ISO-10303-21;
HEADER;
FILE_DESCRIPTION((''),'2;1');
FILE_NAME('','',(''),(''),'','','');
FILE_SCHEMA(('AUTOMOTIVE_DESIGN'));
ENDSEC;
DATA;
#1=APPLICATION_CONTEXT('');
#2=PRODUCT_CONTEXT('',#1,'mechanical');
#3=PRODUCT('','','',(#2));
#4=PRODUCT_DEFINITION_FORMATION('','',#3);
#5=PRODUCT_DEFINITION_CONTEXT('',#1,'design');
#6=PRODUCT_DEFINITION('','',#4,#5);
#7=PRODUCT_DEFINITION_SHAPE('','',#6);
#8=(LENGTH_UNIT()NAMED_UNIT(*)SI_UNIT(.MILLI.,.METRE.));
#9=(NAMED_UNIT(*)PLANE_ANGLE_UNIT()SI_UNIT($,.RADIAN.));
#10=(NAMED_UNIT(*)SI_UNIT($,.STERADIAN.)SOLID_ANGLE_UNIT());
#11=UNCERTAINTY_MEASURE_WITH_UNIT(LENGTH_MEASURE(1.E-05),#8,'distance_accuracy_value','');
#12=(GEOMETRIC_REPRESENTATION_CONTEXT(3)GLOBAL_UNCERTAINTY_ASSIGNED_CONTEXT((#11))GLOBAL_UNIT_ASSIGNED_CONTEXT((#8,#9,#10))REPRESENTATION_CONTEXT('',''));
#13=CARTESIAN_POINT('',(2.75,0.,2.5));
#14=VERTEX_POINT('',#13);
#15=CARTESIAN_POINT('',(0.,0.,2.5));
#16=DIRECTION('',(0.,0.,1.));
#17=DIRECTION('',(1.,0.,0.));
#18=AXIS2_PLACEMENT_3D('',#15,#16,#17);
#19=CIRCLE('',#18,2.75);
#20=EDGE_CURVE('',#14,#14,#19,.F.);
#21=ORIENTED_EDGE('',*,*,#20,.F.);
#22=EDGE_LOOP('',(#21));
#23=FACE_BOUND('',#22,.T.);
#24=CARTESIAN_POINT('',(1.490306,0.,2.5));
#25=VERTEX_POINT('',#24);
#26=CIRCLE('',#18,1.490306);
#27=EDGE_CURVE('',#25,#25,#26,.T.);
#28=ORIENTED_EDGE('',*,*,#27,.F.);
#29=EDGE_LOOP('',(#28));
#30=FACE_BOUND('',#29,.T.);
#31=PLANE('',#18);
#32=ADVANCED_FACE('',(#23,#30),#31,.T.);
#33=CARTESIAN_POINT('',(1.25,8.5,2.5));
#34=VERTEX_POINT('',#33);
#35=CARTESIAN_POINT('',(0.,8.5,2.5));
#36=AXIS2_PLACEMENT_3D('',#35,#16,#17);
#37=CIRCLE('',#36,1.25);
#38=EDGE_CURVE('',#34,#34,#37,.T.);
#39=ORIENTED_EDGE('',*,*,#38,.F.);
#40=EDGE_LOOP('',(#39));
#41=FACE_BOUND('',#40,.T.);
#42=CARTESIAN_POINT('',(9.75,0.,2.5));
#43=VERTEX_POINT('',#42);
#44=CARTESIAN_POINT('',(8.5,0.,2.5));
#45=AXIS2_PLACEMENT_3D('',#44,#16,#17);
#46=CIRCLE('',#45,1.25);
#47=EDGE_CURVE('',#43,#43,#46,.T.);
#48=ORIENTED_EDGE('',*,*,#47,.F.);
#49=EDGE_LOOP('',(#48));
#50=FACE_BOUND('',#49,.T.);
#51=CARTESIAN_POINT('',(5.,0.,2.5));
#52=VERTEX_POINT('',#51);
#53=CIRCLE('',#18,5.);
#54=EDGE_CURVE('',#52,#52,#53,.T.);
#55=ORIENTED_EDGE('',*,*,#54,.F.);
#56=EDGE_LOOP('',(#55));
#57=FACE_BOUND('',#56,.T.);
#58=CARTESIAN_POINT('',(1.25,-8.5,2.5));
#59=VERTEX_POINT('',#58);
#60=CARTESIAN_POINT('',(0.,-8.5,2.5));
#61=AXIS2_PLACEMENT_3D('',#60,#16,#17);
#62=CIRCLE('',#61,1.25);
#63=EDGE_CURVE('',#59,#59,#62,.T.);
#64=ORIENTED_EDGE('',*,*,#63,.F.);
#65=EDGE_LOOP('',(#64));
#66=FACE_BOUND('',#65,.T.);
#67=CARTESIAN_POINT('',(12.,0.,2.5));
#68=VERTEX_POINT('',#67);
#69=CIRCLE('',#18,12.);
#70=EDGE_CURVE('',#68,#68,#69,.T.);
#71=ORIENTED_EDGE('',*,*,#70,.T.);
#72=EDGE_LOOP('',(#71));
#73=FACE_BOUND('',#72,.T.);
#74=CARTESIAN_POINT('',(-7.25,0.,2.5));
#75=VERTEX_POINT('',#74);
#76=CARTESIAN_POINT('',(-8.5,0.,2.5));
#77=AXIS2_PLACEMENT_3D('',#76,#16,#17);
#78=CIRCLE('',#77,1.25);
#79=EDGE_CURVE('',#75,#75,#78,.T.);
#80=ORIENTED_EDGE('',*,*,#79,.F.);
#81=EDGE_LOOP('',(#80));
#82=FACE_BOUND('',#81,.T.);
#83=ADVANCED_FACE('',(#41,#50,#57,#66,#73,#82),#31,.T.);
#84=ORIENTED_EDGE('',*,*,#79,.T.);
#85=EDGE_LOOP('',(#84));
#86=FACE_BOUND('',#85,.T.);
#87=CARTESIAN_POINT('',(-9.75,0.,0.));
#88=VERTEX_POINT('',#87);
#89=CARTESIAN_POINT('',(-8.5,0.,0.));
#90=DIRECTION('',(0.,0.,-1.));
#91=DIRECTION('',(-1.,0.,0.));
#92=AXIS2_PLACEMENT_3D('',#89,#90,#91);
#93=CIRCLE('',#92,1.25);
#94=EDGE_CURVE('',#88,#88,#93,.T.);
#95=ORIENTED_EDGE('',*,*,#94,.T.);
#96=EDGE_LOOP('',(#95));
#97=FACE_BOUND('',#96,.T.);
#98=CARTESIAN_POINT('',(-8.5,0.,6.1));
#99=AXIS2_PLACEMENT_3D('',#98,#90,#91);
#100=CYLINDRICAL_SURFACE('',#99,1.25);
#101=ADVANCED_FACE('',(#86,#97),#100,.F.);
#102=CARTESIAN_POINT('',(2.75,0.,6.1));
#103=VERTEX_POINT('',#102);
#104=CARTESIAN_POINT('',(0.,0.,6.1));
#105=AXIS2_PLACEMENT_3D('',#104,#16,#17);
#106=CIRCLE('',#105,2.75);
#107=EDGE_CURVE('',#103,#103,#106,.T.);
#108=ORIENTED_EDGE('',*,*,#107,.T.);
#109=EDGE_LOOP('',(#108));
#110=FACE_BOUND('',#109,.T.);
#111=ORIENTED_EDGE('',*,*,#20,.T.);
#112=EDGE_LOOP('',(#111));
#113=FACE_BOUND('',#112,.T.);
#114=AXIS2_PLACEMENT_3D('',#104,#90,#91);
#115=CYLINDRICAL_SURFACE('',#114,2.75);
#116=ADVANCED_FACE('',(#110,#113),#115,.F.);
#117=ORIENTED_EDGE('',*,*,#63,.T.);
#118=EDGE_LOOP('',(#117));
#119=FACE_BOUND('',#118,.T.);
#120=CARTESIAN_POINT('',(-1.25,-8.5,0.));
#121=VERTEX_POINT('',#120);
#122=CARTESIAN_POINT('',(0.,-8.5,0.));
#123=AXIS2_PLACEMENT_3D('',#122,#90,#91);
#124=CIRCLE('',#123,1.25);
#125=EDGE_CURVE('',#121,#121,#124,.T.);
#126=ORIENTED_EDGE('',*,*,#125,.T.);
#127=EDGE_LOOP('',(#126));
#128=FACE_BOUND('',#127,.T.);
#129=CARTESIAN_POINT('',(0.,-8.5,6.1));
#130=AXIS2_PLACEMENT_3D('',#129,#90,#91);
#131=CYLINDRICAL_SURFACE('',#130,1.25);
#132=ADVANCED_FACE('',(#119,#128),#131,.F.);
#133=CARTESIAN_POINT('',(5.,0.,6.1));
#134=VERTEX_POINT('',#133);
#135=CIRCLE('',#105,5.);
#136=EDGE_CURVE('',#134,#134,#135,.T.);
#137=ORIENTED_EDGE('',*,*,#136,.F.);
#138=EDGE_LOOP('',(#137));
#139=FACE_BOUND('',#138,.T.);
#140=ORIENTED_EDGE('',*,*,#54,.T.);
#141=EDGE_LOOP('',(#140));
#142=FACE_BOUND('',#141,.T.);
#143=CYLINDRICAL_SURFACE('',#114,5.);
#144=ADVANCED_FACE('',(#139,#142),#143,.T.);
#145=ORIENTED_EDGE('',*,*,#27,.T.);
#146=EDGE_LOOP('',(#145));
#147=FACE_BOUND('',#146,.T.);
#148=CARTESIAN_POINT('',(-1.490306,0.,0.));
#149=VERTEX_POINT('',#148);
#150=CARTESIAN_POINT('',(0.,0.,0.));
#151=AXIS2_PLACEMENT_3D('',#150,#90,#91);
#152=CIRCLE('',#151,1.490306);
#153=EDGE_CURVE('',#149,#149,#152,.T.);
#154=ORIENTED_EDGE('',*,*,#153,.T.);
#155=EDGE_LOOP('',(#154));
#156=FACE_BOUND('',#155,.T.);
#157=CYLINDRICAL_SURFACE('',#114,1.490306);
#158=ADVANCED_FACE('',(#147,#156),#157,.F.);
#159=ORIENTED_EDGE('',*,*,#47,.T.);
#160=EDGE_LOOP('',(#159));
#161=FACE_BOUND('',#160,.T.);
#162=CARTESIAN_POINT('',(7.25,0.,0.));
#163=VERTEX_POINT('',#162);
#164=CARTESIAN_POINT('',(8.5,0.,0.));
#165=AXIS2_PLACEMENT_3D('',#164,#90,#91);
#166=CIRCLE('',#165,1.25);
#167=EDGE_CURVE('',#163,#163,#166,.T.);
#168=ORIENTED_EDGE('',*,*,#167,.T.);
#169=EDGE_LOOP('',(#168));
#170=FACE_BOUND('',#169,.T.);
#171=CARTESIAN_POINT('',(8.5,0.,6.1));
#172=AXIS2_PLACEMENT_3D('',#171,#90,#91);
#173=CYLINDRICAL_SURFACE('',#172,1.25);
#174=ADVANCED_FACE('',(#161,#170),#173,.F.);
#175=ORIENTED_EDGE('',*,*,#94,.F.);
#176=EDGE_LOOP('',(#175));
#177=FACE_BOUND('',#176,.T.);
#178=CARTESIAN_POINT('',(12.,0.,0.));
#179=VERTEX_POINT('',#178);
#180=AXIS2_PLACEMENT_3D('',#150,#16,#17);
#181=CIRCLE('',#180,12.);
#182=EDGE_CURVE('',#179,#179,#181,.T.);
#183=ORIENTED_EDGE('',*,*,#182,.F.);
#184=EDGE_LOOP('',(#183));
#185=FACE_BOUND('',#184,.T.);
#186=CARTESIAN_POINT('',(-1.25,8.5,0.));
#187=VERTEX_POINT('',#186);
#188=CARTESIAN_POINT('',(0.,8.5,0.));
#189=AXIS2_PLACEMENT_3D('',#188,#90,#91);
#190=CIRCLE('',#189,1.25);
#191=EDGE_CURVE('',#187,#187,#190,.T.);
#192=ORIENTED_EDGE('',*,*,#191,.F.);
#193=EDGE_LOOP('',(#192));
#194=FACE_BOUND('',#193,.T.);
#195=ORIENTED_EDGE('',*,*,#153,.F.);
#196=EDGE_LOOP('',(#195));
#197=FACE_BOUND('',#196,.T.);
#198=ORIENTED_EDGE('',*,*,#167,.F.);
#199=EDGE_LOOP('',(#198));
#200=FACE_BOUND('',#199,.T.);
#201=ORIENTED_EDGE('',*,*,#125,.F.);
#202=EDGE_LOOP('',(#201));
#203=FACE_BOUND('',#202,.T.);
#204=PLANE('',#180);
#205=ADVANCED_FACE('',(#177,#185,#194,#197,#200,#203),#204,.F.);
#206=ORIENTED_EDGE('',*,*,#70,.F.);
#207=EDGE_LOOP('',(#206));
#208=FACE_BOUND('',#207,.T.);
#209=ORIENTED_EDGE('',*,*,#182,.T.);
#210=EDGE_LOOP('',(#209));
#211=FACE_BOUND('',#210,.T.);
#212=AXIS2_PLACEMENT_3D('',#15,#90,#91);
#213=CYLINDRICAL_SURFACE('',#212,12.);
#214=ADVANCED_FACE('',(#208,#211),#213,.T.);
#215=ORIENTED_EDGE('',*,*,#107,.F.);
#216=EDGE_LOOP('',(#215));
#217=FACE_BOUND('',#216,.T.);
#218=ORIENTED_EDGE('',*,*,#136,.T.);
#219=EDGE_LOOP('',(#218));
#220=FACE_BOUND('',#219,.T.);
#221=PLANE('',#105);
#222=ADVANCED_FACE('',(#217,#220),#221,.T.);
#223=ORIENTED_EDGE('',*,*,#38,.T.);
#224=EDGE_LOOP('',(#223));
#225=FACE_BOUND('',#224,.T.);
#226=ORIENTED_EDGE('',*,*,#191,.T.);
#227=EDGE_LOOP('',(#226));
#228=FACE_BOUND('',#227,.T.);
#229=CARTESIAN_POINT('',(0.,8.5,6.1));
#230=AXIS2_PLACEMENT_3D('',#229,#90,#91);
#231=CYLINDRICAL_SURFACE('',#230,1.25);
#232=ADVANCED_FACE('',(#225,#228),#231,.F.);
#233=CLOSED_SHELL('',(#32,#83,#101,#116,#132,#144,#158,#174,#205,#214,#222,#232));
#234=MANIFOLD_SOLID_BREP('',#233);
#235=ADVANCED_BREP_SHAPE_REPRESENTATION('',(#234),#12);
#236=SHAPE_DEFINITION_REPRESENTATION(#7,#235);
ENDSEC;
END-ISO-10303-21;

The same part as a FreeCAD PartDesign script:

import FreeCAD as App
import Part
import Sketcher
from FreeCAD import Vector

doc = App.newDocument("Part")
body = doc.addObject("PartDesign::Body", "Body")

sketch1 = doc.addObject("Sketcher::SketchObject", "Sketch")
body.addObject(sketch1)
sketch1.AttachmentSupport = (doc.XY_Plane, [""])
sketch1.MapMode = "FlatFace"
sketch1.addGeometry(Part.Circle(Vector(0, 0, 0), Vector(0, 0, 1), 12), False)
sketch1.addConstraint([
    Sketcher.Constraint("Coincident", 0, 3, -1, 1),
    Sketcher.Constraint("Diameter", 0, 24.0),
])
pad1 = doc.addObject("PartDesign::Pad", "Pad")
body.addObject(pad1)
pad1.Profile = sketch1
pad1.Length = 2.5

sketch2 = doc.addObject("Sketcher::SketchObject", "Sketch001")
body.addObject(sketch2)
sketch2.AttachmentSupport = (doc.XY_Plane, [""])
sketch2.MapMode = "FlatFace"
sketch2.AttachmentOffset = App.Placement(Vector(0, 0, 2.5), App.Rotation())
sketch2.addGeometry([
    Part.Circle(Vector(0, 0, 0), Vector(0, 0, 1), 5),
    Part.Circle(Vector(0, 0, 0), Vector(0, 0, 1), 2.8),
], False)
sketch2.addConstraint([
    Sketcher.Constraint("Coincident", 0, 3, -1, 1),
    Sketcher.Constraint("Coincident", 1, 3, -1, 1),
    Sketcher.Constraint("Diameter", 0, 10.0),
    Sketcher.Constraint("Diameter", 1, 5.5),
])
pad2 = doc.addObject("PartDesign::Pad", "Pad001")
body.addObject(pad2)
pad2.Profile = sketch2
pad2.Length = 3.6

sketch3 = doc.addObject("Sketcher::SketchObject", "Sketch002")
body.addObject(sketch3)
sketch3.AttachmentSupport = (doc.XY_Plane, [""])
sketch3.MapMode = "FlatFace"
sketch3.addGeometry([
    Part.Circle(Vector(0, 0, 0), Vector(0, 0, 1), 1.5),
    Part.Circle(Vector(0, 8.5, 0), Vector(0, 0, 1), 1.2),
    Part.Circle(Vector(-8.5, 0, 0), Vector(0, 0, 1), 1.2),
    Part.Circle(Vector(0, -8.5, 0), Vector(0, 0, 1), 1.2),
    Part.Circle(Vector(8.5, 0, 0), Vector(0, 0, 1), 1.2),
], False)
sketch3.addConstraint([
    Sketcher.Constraint("Coincident", 0, 3, -1, 1),
    Sketcher.Constraint("Equal", 1, 2),
    Sketcher.Constraint("Equal", 2, 3),
    Sketcher.Constraint("Equal", 3, 4),
    Sketcher.Constraint("Symmetric", 1, 3, 3, 3, -1, 1),
    Sketcher.Constraint("Symmetric", 2, 3, 4, 3, -1, 1),
    Sketcher.Constraint("PointOnObject", 1, 3, -2),
    Sketcher.Constraint("PointOnObject", 2, 3, -1),
    Sketcher.Constraint("Diameter", 1, 2.5),
    Sketcher.Constraint("DistanceY", 3, 3, 1, 3, 17.0),
    Sketcher.Constraint("DistanceX", 2, 3, 4, 3, 17.0),
    Sketcher.Constraint("Diameter", 0, 2.980612),
])
pocket1 = doc.addObject("PartDesign::Pocket", "Pocket")
body.addObject(pocket1)
pocket1.Profile = sketch3
pocket1.Type = "ThroughAll"
pocket1.Reversed = True

doc.recompute()
